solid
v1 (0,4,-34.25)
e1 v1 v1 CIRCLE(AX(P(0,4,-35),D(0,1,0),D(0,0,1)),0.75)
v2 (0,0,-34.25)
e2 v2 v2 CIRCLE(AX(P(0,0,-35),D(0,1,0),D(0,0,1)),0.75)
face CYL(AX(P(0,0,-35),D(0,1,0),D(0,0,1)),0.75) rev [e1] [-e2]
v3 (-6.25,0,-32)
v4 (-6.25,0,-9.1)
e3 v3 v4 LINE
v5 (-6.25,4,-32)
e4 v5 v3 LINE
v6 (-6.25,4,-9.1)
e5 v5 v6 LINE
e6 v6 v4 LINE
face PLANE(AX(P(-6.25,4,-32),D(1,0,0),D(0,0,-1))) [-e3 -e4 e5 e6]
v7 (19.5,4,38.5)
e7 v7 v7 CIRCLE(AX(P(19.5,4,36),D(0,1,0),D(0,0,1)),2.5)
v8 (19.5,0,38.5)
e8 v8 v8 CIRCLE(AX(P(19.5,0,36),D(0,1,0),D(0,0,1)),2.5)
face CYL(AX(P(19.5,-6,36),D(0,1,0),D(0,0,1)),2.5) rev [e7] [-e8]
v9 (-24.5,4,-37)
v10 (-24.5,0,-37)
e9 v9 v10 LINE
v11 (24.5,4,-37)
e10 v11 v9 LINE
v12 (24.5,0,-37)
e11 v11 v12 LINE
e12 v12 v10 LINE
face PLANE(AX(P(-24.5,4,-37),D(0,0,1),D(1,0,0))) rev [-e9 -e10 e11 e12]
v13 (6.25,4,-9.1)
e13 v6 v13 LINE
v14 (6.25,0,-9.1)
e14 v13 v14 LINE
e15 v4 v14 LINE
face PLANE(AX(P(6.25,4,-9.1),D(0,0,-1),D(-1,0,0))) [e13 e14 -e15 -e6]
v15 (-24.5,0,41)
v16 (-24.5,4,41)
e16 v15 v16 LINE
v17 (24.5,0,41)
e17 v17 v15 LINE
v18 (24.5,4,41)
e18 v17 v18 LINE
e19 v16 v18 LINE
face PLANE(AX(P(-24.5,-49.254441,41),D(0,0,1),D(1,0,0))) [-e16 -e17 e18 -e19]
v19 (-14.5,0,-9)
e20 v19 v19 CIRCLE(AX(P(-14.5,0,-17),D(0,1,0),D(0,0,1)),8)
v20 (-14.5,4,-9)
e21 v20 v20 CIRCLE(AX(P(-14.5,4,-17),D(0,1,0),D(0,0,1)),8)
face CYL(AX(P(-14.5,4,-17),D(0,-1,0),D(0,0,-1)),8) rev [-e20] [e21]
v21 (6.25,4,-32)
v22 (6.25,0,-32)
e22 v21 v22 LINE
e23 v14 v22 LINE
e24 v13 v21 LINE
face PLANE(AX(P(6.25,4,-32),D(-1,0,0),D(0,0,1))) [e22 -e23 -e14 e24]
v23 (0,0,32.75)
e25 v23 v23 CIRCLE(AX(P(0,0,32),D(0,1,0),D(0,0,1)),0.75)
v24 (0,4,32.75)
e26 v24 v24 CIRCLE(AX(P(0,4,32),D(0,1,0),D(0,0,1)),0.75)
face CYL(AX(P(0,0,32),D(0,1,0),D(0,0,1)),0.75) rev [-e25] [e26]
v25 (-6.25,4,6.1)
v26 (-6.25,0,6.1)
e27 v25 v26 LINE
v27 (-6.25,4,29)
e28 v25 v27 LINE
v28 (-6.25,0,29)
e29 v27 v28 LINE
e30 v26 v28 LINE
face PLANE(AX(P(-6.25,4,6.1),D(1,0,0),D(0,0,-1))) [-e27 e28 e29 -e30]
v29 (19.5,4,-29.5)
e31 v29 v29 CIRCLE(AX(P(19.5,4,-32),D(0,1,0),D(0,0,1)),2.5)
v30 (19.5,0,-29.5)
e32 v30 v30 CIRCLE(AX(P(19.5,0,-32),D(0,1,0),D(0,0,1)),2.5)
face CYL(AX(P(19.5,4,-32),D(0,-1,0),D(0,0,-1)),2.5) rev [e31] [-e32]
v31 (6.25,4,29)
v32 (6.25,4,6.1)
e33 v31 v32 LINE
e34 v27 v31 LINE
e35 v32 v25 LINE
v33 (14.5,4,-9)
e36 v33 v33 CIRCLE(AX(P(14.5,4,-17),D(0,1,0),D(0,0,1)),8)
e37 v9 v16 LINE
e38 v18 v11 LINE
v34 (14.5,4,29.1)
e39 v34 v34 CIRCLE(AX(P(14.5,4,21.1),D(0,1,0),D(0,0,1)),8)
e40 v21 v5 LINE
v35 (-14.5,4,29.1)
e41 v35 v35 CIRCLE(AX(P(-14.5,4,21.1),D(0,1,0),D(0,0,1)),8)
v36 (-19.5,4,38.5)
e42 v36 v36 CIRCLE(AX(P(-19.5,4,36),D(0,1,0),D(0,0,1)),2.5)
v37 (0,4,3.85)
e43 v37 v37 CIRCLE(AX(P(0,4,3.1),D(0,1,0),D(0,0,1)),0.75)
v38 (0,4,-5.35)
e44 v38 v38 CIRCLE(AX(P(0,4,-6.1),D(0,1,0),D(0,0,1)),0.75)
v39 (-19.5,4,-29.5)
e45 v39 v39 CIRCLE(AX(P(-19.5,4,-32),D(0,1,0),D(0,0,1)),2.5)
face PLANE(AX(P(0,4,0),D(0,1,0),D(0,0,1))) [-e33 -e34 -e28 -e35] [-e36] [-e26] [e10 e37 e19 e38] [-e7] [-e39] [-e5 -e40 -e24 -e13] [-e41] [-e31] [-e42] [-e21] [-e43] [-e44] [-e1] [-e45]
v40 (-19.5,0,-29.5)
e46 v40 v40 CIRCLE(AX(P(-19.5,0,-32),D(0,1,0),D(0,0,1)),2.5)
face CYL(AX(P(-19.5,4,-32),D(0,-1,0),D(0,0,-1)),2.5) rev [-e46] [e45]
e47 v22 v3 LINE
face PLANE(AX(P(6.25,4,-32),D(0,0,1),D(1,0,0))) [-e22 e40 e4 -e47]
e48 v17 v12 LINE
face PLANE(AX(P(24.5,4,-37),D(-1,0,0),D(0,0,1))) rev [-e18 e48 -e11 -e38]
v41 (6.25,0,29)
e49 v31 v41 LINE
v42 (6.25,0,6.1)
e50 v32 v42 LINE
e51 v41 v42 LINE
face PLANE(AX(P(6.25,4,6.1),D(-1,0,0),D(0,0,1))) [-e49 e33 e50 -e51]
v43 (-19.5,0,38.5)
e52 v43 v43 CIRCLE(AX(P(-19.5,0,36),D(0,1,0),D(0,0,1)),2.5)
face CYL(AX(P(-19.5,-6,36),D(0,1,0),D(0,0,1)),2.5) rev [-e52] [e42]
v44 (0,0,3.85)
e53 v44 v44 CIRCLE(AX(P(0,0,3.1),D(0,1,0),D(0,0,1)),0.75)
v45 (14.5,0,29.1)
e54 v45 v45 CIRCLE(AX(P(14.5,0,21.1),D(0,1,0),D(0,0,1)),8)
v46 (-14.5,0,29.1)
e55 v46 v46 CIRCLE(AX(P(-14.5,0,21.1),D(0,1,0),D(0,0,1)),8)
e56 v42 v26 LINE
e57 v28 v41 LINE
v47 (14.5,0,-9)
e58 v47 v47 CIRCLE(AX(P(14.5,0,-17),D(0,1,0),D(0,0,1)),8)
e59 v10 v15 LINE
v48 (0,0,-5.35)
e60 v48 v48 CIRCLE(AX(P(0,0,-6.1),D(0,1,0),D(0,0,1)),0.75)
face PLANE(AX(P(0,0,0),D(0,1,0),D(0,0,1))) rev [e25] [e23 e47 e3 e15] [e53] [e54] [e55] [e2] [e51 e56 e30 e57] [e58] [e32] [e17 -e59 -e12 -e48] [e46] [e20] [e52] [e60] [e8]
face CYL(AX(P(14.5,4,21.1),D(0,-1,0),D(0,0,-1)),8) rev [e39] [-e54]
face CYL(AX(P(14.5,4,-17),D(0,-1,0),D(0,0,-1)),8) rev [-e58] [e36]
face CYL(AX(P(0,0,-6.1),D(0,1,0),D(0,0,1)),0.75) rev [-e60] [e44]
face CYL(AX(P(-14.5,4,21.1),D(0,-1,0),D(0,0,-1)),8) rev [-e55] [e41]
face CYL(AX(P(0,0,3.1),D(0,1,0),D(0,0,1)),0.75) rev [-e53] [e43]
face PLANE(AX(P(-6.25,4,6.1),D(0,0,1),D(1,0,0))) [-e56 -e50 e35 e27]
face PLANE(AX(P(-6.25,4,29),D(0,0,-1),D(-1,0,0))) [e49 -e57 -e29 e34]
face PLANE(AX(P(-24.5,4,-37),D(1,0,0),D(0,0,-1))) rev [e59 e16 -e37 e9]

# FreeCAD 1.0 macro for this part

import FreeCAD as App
import Part
import Sketcher


def add_polygon(sketch, points):
    """Adds a closed chain of lines whose ends are joined by coincident constraints."""
    first, n = sketch.GeometryCount, len(points)
    for a, b in zip(points, points[1:] + points[:1]):
        sketch.addGeometry(Part.LineSegment(App.Vector(*a, 0), App.Vector(*b, 0)), False)
    for i in range(n):
        sketch.addConstraint(Sketcher.Constraint("Coincident", first + i, 2, first + (i + 1) % n, 1))

doc = App.newDocument("Part")
body = doc.addObject("PartDesign::Body", "Body")

sketch1 = body.newObject("Sketcher::SketchObject", "Sketch")
sketch1.AttachmentSupport = (doc.getObject("XZ_Plane"), [""])
sketch1.MapMode = "FlatFace"
add_polygon(sketch1, [(-24.5, -37), (-24.5, 36), (24.5, 36), (24.5, -37)])
sketch1.addGeometry(Part.Circle(App.Vector(-14.5, 21.1, 0), App.Vector(0, 0, 1), 8), False)
add_polygon(sketch1, [(6.2, 29), (-6.2, 29), (-6.2, 6.1), (6.2, 6.1)])
sketch1.addGeometry(Part.Circle(App.Vector(14.5, 21.1, 0), App.Vector(0, 0, 1), 8), False)
sketch1.addGeometry(Part.Circle(App.Vector(-14.5, -17, 0), App.Vector(0, 0, 1), 8), False)
sketch1.addGeometry(Part.Circle(App.Vector(-19.5, -32, 0), App.Vector(0, 0, 1), 2.5), False)
sketch1.addGeometry(Part.Circle(App.Vector(14.5, -17, 0), App.Vector(0, 0, 1), 8), False)
add_polygon(sketch1, [(6.2, -9.1), (-6.2, -9.1), (-6.2, -32), (6.2, -32)])
sketch1.addGeometry(Part.Circle(App.Vector(19.5, -32, 0), App.Vector(0, 0, 1), 2.5), False)
sketch1.addConstraint([
    Sketcher.Constraint("Vertical", 0),
    Sketcher.Constraint("Horizontal", 1),
    Sketcher.Constraint("Vertical", 2),
    Sketcher.Constraint("Horizontal", 3),
    Sketcher.Constraint("Horizontal", 5),
    Sketcher.Constraint("Vertical", 6),
    Sketcher.Constraint("Horizontal", 7),
    Sketcher.Constraint("Vertical", 8),
    Sketcher.Constraint("Horizontal", 13),
    Sketcher.Constraint("Vertical", 14),
    Sketcher.Constraint("Horizontal", 15),
    Sketcher.Constraint("Vertical", 16),
    Sketcher.Constraint("Equal", 4, 9),
    Sketcher.Constraint("Equal", 9, 10),
    Sketcher.Constraint("Equal", 10, 12),
    Sketcher.Constraint("Equal", 11, 17),
    Sketcher.Constraint("Symmetric", 4, 3, 9, 3, -2),
    Sketcher.Constraint("Symmetric", 10, 3, 12, 3, -2),
    Sketcher.Constraint("Symmetric", 11, 3, 17, 3, -2),
    Sketcher.Constraint("Horizontal", 17, 3, 14, 2),
    Sketcher.Constraint("Vertical", 4, 3, 10, 3),
    Sketcher.Constraint("Vertical", 6, 2, 13, 2),
    Sketcher.Constraint("Vertical", 8, 2, 15, 2),
    Sketcher.Constraint("Equal", 8, 14),
    Sketcher.Constraint("Diameter", 4, 16.0),
    Sketcher.Constraint("Diameter", 11, 5.0),
    Sketcher.Constraint("DistanceX", 1, 1, 1, 2, 49.0),
    Sketcher.Constraint("DistanceY", 0, 1, 0, 2, 73.0),
    Sketcher.Constraint("DistanceX", 5, 2, 5, 1, 12.5),
    Sketcher.Constraint("DistanceY", 6, 2, 6, 1, 22.9),
    Sketcher.Constraint("DistanceY", 10, 3, -1, 1, 17.0),
    Sketcher.Constraint("DistanceY", 11, 3, -1, 1, 32.0),
    Sketcher.Constraint("DistanceY", -1, 1, 0, 2, 36.0),
    Sketcher.Constraint("DistanceY", -1, 1, 5, 2, 29.0),
    Sketcher.Constraint("DistanceX", 4, 3, 9, 3, 29.0),
    Sketcher.Constraint("DistanceX", 11, 3, 10, 3, 5.0),
    Sketcher.Constraint("DistanceX", 0, 2, 4, 3, 10.0),
    Sketcher.Constraint("DistanceY", 6, 2, 4, 3, 15.0),
    Sketcher.Constraint("DistanceX", 5, 2, -1, 1, 6.25),
])
pad1 = body.newObject("PartDesign::Pad", "Pad")
pad1.Profile = sketch1
pad1.Length = 4
pad1.Reversed = True

sketch2 = body.newObject("Sketcher::SketchObject", "Sketch001")
sketch2.AttachmentSupport = (doc.getObject("XZ_Plane"), [""])
sketch2.MapMode = "FlatFace"
sketch2.AttachmentOffset = App.Placement(App.Vector(0, 0, -4), App.Rotation())
sketch2.addGeometry([
    Part.Circle(App.Vector(0, -35, 0), App.Vector(0, 0, 1), 0.8),
    Part.Circle(App.Vector(0, -6.1, 0), App.Vector(0, 0, 1), 0.8),
    Part.Circle(App.Vector(0, 3.1, 0), App.Vector(0, 0, 1), 0.8),
    Part.Circle(App.Vector(0, 32, 0), App.Vector(0, 0, 1), 0.8),
], False)
sketch2.addConstraint([
    Sketcher.Constraint("Equal", 0, 1),
    Sketcher.Constraint("Equal", 1, 2),
    Sketcher.Constraint("Equal", 2, 3),
    Sketcher.Constraint("PointOnObject", 0, 3, -2),
    Sketcher.Constraint("PointOnObject", 1, 3, -2),
    Sketcher.Constraint("PointOnObject", 2, 3, -2),
    Sketcher.Constraint("PointOnObject", 3, 3, -2),
    Sketcher.Constraint("Diameter", 0, 1.5),
    Sketcher.Constraint("DistanceY", 0, 3, -1, 1, 35.0),
    Sketcher.Constraint("DistanceY", -1, 1, 3, 3, 32.0),
    Sketcher.Constraint("DistanceY", 1, 3, -1, 1, 6.1),
    Sketcher.Constraint("DistanceY", -1, 1, 2, 3, 3.1),
])
pocket1 = body.newObject("PartDesign::Pocket", "Pocket")
pocket1.Profile = sketch2
pocket1.Length = 4
pocket1.Reversed = True

sketch3 = body.newObject("Sketcher::SketchObject", "Sketch002")
sketch3.AttachmentSupport = (doc.getObject("XZ_Plane"), [""])
sketch3.MapMode = "FlatFace"
sketch3.AttachmentOffset = App.Placement(App.Vector(0, 0, -4), App.Rotation())
add_polygon(sketch3, [(-24, 36), (-24, 41), (24, 41), (24, 36)])
sketch3.addConstraint([
    Sketcher.Constraint("Vertical", 0),
    Sketcher.Constraint("Horizontal", 1),
    Sketcher.Constraint("Vertical", 2),
    Sketcher.Constraint("Horizontal", 3),
    Sketcher.Constraint("DistanceX", 1, 1, 1, 2, 49.0),
    Sketcher.Constraint("DistanceY", 0, 1, 0, 2, 5.0),
    Sketcher.Constraint("DistanceY", -1, 1, 0, 2, 41.0),
    Sketcher.Constraint("DistanceX", 0, 2, -1, 1, 24.5),
])
pad2 = body.newObject("PartDesign::Pad", "Pad001")
pad2.Profile = sketch3
pad2.Length = 4

sketch4 = body.newObject("Sketcher::SketchObject", "Sketch003")
sketch4.AttachmentSupport = (doc.getObject("XZ_Plane"), [""])
sketch4.MapMode = "FlatFace"
sketch4.AttachmentOffset = App.Placement(App.Vector(0, 0, -4), App.Rotation())
sketch4.addGeometry([
    Part.Circle(App.Vector(-19.5, 36, 0), App.Vector(0, 0, 1), 2.5),
    Part.Circle(App.Vector(19.5, 36, 0), App.Vector(0, 0, 1), 2.5),
], False)
sketch4.addConstraint([
    Sketcher.Constraint("Equal", 0, 1),
    Sketcher.Constraint("Symmetric", 0, 3, 1, 3, -2),
    Sketcher.Constraint("Diameter", 0, 5.0),
    Sketcher.Constraint("DistanceY", -1, 1, 0, 3, 36.0),
    Sketcher.Constraint("DistanceX", 0, 3, 1, 3, 39.0),
])
pocket2 = body.newObject("PartDesign::Pocket", "Pocket001")
pocket2.Profile = sketch4
pocket2.Length = 10
pocket2.Reversed = True

doc.recompute()
